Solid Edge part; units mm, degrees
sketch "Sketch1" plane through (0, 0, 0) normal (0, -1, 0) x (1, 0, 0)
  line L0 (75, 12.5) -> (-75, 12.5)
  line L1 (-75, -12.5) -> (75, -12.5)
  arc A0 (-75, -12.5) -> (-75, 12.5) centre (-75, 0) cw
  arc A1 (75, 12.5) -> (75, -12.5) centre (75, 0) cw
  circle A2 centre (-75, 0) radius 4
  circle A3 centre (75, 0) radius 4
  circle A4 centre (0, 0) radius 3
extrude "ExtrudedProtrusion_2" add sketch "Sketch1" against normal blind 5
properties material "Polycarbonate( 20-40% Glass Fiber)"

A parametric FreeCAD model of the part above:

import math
import FreeCAD as App
import Part
import Sketcher

V = App.Vector
Q = App.Units.Quantity

doc = App.newDocument("Part")
params = doc.addObject("Spreadsheet::Sheet", "Params")
for row, (alias, value) in enumerate([
    ("sketch1_diameter", "8 mm"),
    ("sketch1_diameter2", "6 mm"),
    ("sketch1_radius", "12.5 mm"),
    ("sketch1_width", "150 mm"),
    ("pad1_length", "5 mm"),
], start=1):
    params.set(f"A{row}", alias)
    params.set(f"B{row}", "=" + value)
    params.setAlias(f"B{row}", alias)

body = doc.addObject("PartDesign::Body", "Body")

# Sketch on XZ plane
sketch1 = doc.addObject("Sketcher::SketchObject", "Sketch")
body.addObject(sketch1)
sketch1.AttachmentSupport = (doc.XZ_Plane, [""])
sketch1.MapMode = "FlatFace"
sketch1.addGeometry([
    Part.ArcOfCircle(Part.Circle(V(75, 0, 0), V(0, 0, 1), 12.5), math.radians(-90), math.radians(90)),  # 0
    Part.LineSegment(V(75, 12.5, 0), V(-75, 12.5, 0)),  # 1
    Part.ArcOfCircle(Part.Circle(V(-75, 0, 0), V(0, 0, 1), 12.5), math.radians(90), math.radians(270)),  # 2
    Part.LineSegment(V(-75, -12.5, 0), V(75, -12.5, 0)),  # 3
    Part.Circle(V(-75, 0, 0), V(0, 0, 1), 4),  # 4
    Part.Circle(V(0, 0, 0), V(0, 0, 1), 3),  # 5
    Part.Circle(V(75, 0, 0), V(0, 0, 1), 4),  # 6
], False)
sketch1.addConstraint([
    Sketcher.Constraint("Tangent", 0, 2, 1, 1),
    Sketcher.Constraint("Tangent", 1, 2, 2, 1),
    Sketcher.Constraint("Tangent", 2, 2, 3, 1),
    Sketcher.Constraint("Tangent", 3, 2, 0, 1),
    Sketcher.Constraint("Horizontal", 1),
    Sketcher.Constraint("Horizontal", 3),
    Sketcher.Constraint("Coincident", 5, 3, -1, 1),
    Sketcher.Constraint("Coincident", 4, 3, 2, 3),
    Sketcher.Constraint("Coincident", 6, 3, 0, 3),
    Sketcher.Constraint("Equal", 4, 6),
    Sketcher.Constraint("Symmetric", 0, 3, 2, 3, -1, 1),
    Sketcher.Constraint("Diameter", 4, Q("8 mm")),
    Sketcher.Constraint("Diameter", 5, Q("6 mm")),
    Sketcher.Constraint("Radius", 0, Q("12.5 mm")),
    Sketcher.Constraint("DistanceX", 1, 2, 1, 1, Q("150 mm")),
])
sketch1.setExpression("Constraints[11]", "Params.sketch1_diameter")
sketch1.setExpression("Constraints[12]", "Params.sketch1_diameter2")
sketch1.setExpression("Constraints[13]", "Params.sketch1_radius")
sketch1.setExpression("Constraints[14]", "Params.sketch1_width")
pad1 = doc.addObject("PartDesign::Pad", "Pad")
body.addObject(pad1)
pad1.Profile = sketch1
pad1.setExpression("Length", "Params.pad1_length")
pad1.Reversed = True

doc.recompute()
